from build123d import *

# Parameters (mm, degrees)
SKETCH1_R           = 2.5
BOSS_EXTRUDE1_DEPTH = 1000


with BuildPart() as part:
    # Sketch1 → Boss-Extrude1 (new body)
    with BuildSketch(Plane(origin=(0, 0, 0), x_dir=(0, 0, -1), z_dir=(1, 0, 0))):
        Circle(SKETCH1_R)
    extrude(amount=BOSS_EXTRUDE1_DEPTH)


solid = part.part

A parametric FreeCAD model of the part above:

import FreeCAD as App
import Part
import Sketcher

V = App.Vector
Q = App.Units.Quantity

doc = App.newDocument("Part")
body = doc.addObject("PartDesign::Body", "Body")

# Sketch on YZ plane
sketch1 = doc.addObject("Sketcher::SketchObject", "Sketch")
body.addObject(sketch1)
sketch1.AttachmentSupport = (doc.YZ_Plane, [""])
sketch1.MapMode = "FlatFace"
sketch1.addGeometry(Part.Circle(V(0, 0, 0), V(0, 0, 1), 2.5), False)
sketch1.addConstraint([
    Sketcher.Constraint("Coincident", 0, 3, -1, 1),
    Sketcher.Constraint("Diameter", 0, Q("5 mm")),
])
pad1 = doc.addObject("PartDesign::Pad", "Pad")
body.addObject(pad1)
pad1.Profile = sketch1
pad1.Length = 1000

doc.recompute()
